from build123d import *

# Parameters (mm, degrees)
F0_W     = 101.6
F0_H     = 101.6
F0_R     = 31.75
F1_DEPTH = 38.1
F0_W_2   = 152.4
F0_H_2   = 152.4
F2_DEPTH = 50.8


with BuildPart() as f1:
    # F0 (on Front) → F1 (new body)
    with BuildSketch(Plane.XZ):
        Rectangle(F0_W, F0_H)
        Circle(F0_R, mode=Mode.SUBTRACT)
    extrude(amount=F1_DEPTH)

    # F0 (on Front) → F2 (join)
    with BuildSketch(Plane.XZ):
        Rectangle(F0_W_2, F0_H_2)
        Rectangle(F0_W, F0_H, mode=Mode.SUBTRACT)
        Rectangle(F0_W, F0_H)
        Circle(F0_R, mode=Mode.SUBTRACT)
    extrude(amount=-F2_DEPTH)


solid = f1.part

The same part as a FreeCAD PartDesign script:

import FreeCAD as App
import Part
import Sketcher
from FreeCAD import Vector
Q = App.Units.Quantity

doc = App.newDocument("Part")
body = doc.addObject("PartDesign::Body", "Body")

sketch1 = body.newObject("Sketcher::SketchObject", "Sketch")
sketch1.AttachmentSupport = (doc.getObject("XZ_Plane"), [""])
sketch1.MapMode = "FlatFace"
sketch1.addGeometry([
    Part.LineSegment(Vector(-51, 51, 0), Vector(-51, -51, 0)),
    Part.LineSegment(Vector(-51, -51, 0), Vector(51, -51, 0)),
    Part.LineSegment(Vector(51, -51, 0), Vector(51, 51, 0)),
    Part.LineSegment(Vector(51, 51, 0), Vector(-51, 51, 0)),
    Part.Circle(Vector(0, 0, 0), Vector(0, 0, 1), 32),
], False)
sketch1.addConstraint([
    Sketcher.Constraint("Coincident", 0, 2, 1, 1),
    Sketcher.Constraint("Coincident", 1, 2, 2, 1),
    Sketcher.Constraint("Coincident", 2, 2, 3, 1),
    Sketcher.Constraint("Coincident", 3, 2, 0, 1),
    Sketcher.Constraint("Vertical", 0),
    Sketcher.Constraint("Horizontal", 1),
    Sketcher.Constraint("Vertical", 2),
    Sketcher.Constraint("Horizontal", 3),
    Sketcher.Constraint("Coincident", 4, 3, -1, 1),
    Sketcher.Constraint("Symmetric", 0, 2, 2, 2, -1, 1),
    Sketcher.Constraint("Equal", 3, 0),
    Sketcher.Constraint("Diameter", 4, Q("2.5 in")),
    Sketcher.Constraint("DistanceX", 1, 1, 1, 2, Q("4 in")),
])
pad1 = body.newObject("PartDesign::Pad", "Pad")
pad1.Profile = sketch1
pad1.Length = Q("1.5 in")

sketch2 = body.newObject("Sketcher::SketchObject", "Sketch001")
sketch2.AttachmentSupport = (doc.getObject("XZ_Plane"), [""])
sketch2.MapMode = "FlatFace"
sketch2.addGeometry([
    Part.LineSegment(Vector(-76, 76, 0), Vector(-76, -76, 0)),
    Part.LineSegment(Vector(-76, -76, 0), Vector(76, -76, 0)),
    Part.LineSegment(Vector(76, -76, 0), Vector(76, 76, 0)),
    Part.LineSegment(Vector(76, 76, 0), Vector(-76, 76, 0)),
    Part.Circle(Vector(0, 0, 0), Vector(0, 0, 1), 32),
], False)
sketch2.addConstraint([
    Sketcher.Constraint("Coincident", 0, 2, 1, 1),
    Sketcher.Constraint("Coincident", 1, 2, 2, 1),
    Sketcher.Constraint("Coincident", 2, 2, 3, 1),
    Sketcher.Constraint("Coincident", 3, 2, 0, 1),
    Sketcher.Constraint("Vertical", 0),
    Sketcher.Constraint("Horizontal", 1),
    Sketcher.Constraint("Vertical", 2),
    Sketcher.Constraint("Horizontal", 3),
    Sketcher.Constraint("Coincident", 4, 3, -1, 1),
    Sketcher.Constraint("Symmetric", 0, 2, 2, 2, -1, 1),
    Sketcher.Constraint("Equal", 3, 0),
    Sketcher.Constraint("Diameter", 4, Q("2.5 in")),
    Sketcher.Constraint("DistanceX", 1, 1, 1, 2, Q("6 in")),
])
pad2 = body.newObject("PartDesign::Pad", "Pad001")
pad2.Profile = sketch2
pad2.Length = Q("2 in")
pad2.Reversed = True

doc.recompute()
